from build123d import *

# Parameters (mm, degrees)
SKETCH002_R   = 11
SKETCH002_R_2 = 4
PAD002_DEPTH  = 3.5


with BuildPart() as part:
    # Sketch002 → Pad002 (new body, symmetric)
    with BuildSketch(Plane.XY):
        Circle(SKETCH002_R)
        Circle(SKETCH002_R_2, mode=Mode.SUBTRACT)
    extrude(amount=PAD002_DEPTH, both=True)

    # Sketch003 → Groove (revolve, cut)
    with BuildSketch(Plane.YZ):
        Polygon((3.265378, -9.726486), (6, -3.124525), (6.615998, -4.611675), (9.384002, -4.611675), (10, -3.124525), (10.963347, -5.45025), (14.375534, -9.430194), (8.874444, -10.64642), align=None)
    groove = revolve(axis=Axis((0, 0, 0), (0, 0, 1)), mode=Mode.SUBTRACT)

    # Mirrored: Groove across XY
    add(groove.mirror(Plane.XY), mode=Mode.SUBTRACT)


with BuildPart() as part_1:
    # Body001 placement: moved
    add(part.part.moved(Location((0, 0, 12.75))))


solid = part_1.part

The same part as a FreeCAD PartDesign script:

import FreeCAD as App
import Part
import Sketcher
Q = App.Units.Quantity

doc = App.newDocument("Part")
body = doc.addObject("PartDesign::Body", "Body")

# Sketch on XY plane
sketch1 = body.newObject("Sketcher::SketchObject", "Sketch")
sketch1.AttachmentSupport = (doc.getObject("XY_Plane"), [""])
sketch1.MapMode = "FlatFace"
sketch1.addGeometry([
    Part.Circle(App.Vector(0, 0, 0), App.Vector(0, 0, 1), 11),
    Part.Circle(App.Vector(0, 0, 0), App.Vector(0, 0, 1), 4),
], False)
sketch1.addConstraint([
    Sketcher.Constraint("Coincident", 0, 3, -1, 1),
    Sketcher.Constraint("Coincident", 1, 3, -1, 1),
    Sketcher.Constraint("Diameter", 0, 22.0),
    Sketcher.Constraint("Diameter", 1, 8.0),
])
pad1 = body.newObject("PartDesign::Pad", "Pad")
pad1.Profile = sketch1
pad1.Length = 7
pad1.Midplane = True

# Sketch on YZ plane
sketch2 = body.newObject("Sketcher::SketchObject", "Sketch001")
sketch2.AttachmentSupport = (doc.getObject("YZ_Plane"), [""])
sketch2.MapMode = "FlatFace"
sketch2.addGeometry([
    Part.LineSegment(App.Vector(6, -3.1, 0), App.Vector(3.3, -9.7, 0)),  # 0
    Part.LineSegment(App.Vector(3.3, -9.7, 0), App.Vector(8.9, -10.6, 0)),  # 1
    Part.LineSegment(App.Vector(8.9, -10.6, 0), App.Vector(14.4, -9.4, 0)),  # 2
    Part.LineSegment(App.Vector(14.4, -9.4, 0), App.Vector(11, -5.5, 0)),  # 3
    Part.LineSegment(App.Vector(11, -5.5, 0), App.Vector(10, -3.1, 0)),  # 4
    Part.LineSegment(App.Vector(10, -3.1, 0), App.Vector(9.4, -4.6, 0)),  # 5
    Part.LineSegment(App.Vector(9.4, -4.6, 0), App.Vector(6.6, -4.6, 0)),  # 6
    Part.LineSegment(App.Vector(6.6, -4.6, 0), App.Vector(6, -3.1, 0)),  # 7
], False)
sketch2.addConstraint([
    Sketcher.Constraint("Coincident", 0, 2, 1, 1),
    Sketcher.Constraint("Coincident", 1, 2, 2, 1),
    Sketcher.Constraint("Coincident", 2, 2, 3, 1),
    Sketcher.Constraint("Coincident", 3, 2, 4, 1),
    Sketcher.Constraint("Coincident", 4, 2, 5, 1),
    Sketcher.Constraint("Coincident", 5, 2, 6, 1),
    Sketcher.Constraint("Coincident", 6, 2, 7, 1),
    Sketcher.Constraint("Coincident", 7, 2, 0, 1),
    Sketcher.Constraint("Horizontal", 6),
    Sketcher.Constraint("Parallel", 0, 5),
    Sketcher.Constraint("Parallel", 4, 7),
    Sketcher.Constraint("Horizontal", 4, 2, 7, 2),
    Sketcher.Constraint("Equal", 5, 7),
    Sketcher.Constraint("DistanceX", -1, 1, 4, 2, 10.0),
    Sketcher.Constraint("DistanceX", -1, 1, 7, 2, 6.0),
    Sketcher.Constraint("Angle", 0, Q("-112.500002 deg")),
    Sketcher.Constraint("DistanceX", -1, 1, 6, 2, 6.615998),
    Sketcher.Constraint("Distance", 0, 7.145911),
    Sketcher.Constraint("Distance", 3, 5.242421),
    Sketcher.Constraint("DistanceY", 1, 2, -1, 1, 10.64642),
    Sketcher.Constraint("DistanceY", 3, 2, -1, 1, 5.45025),
    Sketcher.Constraint("DistanceX", 1, 2, 2, 2, 5.50109),
    Sketcher.Constraint("DistanceY", 0, 2, 2, 2, 0.296292),
    Sketcher.Constraint("DistanceX", 0, 2, 3, 2, 7.697969),
])
groove = body.newObject("PartDesign::Groove", "Groove")
groove.Profile = sketch2
groove.ReferenceAxis = (sketch2, ["V_Axis"])
groove.Angle = 360
doc.recompute()

mirrored = body.newObject("PartDesign::Mirrored", "Mirrored")
mirrored.Originals = [groove]
mirrored.MirrorPlane = (doc.getObject("XY_Plane"), [""])
body.Tip = mirrored
body2 = doc.addObject("PartDesign::Body", "Body001")
doc.recompute()

body.Placement = App.Placement(App.Vector(0, 0, 12.75), App.Rotation(App.Vector(0, 0, 1), 0))
boolean = body2.newObject("PartDesign::Boolean", "Boolean")
boolean.Type = "Fuse"
boolean.addObjects([body])

doc.recompute()
